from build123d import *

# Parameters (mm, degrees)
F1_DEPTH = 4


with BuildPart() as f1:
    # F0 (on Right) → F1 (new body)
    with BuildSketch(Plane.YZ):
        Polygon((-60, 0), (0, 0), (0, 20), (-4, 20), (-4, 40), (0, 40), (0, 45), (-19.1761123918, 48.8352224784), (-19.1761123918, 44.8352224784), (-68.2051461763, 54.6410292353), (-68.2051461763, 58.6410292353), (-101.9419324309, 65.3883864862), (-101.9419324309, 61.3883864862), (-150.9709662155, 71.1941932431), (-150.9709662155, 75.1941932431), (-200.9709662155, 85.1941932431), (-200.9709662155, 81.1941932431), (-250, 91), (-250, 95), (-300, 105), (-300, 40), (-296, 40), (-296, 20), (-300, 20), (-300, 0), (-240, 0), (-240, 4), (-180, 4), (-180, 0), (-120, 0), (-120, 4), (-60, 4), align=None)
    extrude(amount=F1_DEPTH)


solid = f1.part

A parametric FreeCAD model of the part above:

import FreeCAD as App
import Part
import Sketcher
from FreeCAD import Vector
Q = App.Units.Quantity


def add_polygon(sketch, points):
    """Adds a closed chain of lines whose ends are joined by coincident constraints."""
    first, n = sketch.GeometryCount, len(points)
    for a, b in zip(points, points[1:] + points[:1]):
        sketch.addGeometry(Part.LineSegment(App.Vector(*a, 0), App.Vector(*b, 0)), False)
    for i in range(n):
        sketch.addConstraint(Sketcher.Constraint("Coincident", first + i, 2, first + (i + 1) % n, 1))

doc = App.newDocument("Part")
body = doc.addObject("PartDesign::Body", "Body")

sketch1 = body.newObject("Sketcher::SketchObject", "Sketch")
sketch1.AttachmentSupport = (doc.getObject("YZ_Plane"), [""])
sketch1.MapMode = "FlatFace"
add_polygon(sketch1, [(-60, 0), (0, 0), (0, 20), (-4, 20), (-4, 40), (0, 40), (0, 45), (-19.176112, 48.835222), (-19.176112, 44.835222), (-68.205146, 54.641029), (-68.205146, 58.641029), (-101.941932, 65.388386), (-101.941932, 61.388386), (-150.970966, 71.194193), (-150.970966, 75.194193), (-200.970966, 85.194193), (-200.970966, 81.194193), (-250, 91), (-250, 95), (-300, 105), (-300, 40), (-296, 40), (-296, 20), (-300, 20), (-300, 0), (-240, 0), (-240, 4), (-180, 4), (-180, 0), (-120, 0), (-120, 4), (-60, 4)])
sketch1.addConstraint([
    Sketcher.Constraint("Horizontal", 0),
    Sketcher.Constraint("Vertical", 1),
    Sketcher.Constraint("Horizontal", 2),
    Sketcher.Constraint("Vertical", 3),
    Sketcher.Constraint("Horizontal", 4),
    Sketcher.Constraint("Vertical", 5),
    Sketcher.Constraint("Vertical", 7),
    Sketcher.Constraint("Vertical", 9),
    Sketcher.Constraint("Vertical", 11),
    Sketcher.Constraint("Vertical", 13),
    Sketcher.Constraint("Vertical", 15),
    Sketcher.Constraint("Vertical", 17),
    Sketcher.Constraint("Vertical", 19),
    Sketcher.Constraint("Horizontal", 20),
    Sketcher.Constraint("Vertical", 21),
    Sketcher.Constraint("Horizontal", 22),
    Sketcher.Constraint("Vertical", 23),
    Sketcher.Constraint("Horizontal", 24),
    Sketcher.Constraint("Vertical", 25),
    Sketcher.Constraint("Horizontal", 26),
    Sketcher.Constraint("Vertical", 27),
    Sketcher.Constraint("Horizontal", 28),
    Sketcher.Constraint("Vertical", 29),
    Sketcher.Constraint("Horizontal", 30),
    Sketcher.Constraint("Vertical", 31),
    Sketcher.Constraint("Coincident", 0, 2, -1, 1),
    Sketcher.Constraint("PointOnObject", 4, 2, -2),
    Sketcher.Constraint("PointOnObject", 23, 2, -1),
    Sketcher.Constraint("PointOnObject", 27, 2, -1),
    Sketcher.Constraint("Parallel", 6, 8),
    Sketcher.Constraint("Parallel", 8, 10),
    Sketcher.Constraint("Parallel", 10, 12),
    Sketcher.Constraint("Parallel", 12, 14),
    Sketcher.Constraint("Parallel", 14, 16),
    Sketcher.Constraint("Parallel", 16, 18),
    Sketcher.Constraint("Horizontal", 4, 2, 19, 2),
    Sketcher.Constraint("Horizontal", 2, 2, 21, 2),
    Sketcher.Constraint("Horizontal", 26, 2, 29, 2),
    Sketcher.Constraint("Vertical", 19, 2, 22, 2),
    Sketcher.Constraint("Equal", 4, 20),
    Sketcher.Constraint("Equal", 0, 24),
    Sketcher.Constraint("Equal", 24, 26),
    Sketcher.Constraint("Equal", 26, 28),
    Sketcher.Constraint("Equal", 28, 30),
    Sketcher.Constraint("Equal", 1, 3),
    Sketcher.Constraint("Equal", 22, 7),
    Sketcher.Constraint("Equal", 7, 9),
    Sketcher.Constraint("Equal", 9, 11),
    Sketcher.Constraint("Equal", 11, 13),
    Sketcher.Constraint("Equal", 13, 15),
    Sketcher.Constraint("Equal", 15, 17),
    Sketcher.Constraint("Equal", 17, 25),
    Sketcher.Constraint("Equal", 8, 12),
    Sketcher.Constraint("Equal", 12, 16),
    Sketcher.Constraint("Equal", 14, 18),
    Sketcher.Constraint("DistanceX", 0, 1, 0, 2, Q("60 mm")),
    Sketcher.Constraint("DistanceX", 2, 2, 2, 1, Q("4 mm")),
    Sketcher.Constraint("DistanceY", 1, 1, 1, 2, Q("20 mm")),
    Sketcher.Constraint("DistanceY", 5, 1, 5, 2, Q("5 mm")),
    Sketcher.Constraint("DistanceY", 19, 2, 19, 1, Q("65 mm")),
    Sketcher.Constraint("Distance", 8, Q("50 mm")),
    Sketcher.Constraint("DistanceX", 16, 2, -1, 1, Q("250 mm")),
    Sketcher.Constraint("DistanceY", -1, 1, 8, 2, Q("54.641029 mm")),
])
pad1 = body.newObject("PartDesign::Pad", "Pad")
pad1.Profile = sketch1
pad1.Length = 4

doc.recompute()
